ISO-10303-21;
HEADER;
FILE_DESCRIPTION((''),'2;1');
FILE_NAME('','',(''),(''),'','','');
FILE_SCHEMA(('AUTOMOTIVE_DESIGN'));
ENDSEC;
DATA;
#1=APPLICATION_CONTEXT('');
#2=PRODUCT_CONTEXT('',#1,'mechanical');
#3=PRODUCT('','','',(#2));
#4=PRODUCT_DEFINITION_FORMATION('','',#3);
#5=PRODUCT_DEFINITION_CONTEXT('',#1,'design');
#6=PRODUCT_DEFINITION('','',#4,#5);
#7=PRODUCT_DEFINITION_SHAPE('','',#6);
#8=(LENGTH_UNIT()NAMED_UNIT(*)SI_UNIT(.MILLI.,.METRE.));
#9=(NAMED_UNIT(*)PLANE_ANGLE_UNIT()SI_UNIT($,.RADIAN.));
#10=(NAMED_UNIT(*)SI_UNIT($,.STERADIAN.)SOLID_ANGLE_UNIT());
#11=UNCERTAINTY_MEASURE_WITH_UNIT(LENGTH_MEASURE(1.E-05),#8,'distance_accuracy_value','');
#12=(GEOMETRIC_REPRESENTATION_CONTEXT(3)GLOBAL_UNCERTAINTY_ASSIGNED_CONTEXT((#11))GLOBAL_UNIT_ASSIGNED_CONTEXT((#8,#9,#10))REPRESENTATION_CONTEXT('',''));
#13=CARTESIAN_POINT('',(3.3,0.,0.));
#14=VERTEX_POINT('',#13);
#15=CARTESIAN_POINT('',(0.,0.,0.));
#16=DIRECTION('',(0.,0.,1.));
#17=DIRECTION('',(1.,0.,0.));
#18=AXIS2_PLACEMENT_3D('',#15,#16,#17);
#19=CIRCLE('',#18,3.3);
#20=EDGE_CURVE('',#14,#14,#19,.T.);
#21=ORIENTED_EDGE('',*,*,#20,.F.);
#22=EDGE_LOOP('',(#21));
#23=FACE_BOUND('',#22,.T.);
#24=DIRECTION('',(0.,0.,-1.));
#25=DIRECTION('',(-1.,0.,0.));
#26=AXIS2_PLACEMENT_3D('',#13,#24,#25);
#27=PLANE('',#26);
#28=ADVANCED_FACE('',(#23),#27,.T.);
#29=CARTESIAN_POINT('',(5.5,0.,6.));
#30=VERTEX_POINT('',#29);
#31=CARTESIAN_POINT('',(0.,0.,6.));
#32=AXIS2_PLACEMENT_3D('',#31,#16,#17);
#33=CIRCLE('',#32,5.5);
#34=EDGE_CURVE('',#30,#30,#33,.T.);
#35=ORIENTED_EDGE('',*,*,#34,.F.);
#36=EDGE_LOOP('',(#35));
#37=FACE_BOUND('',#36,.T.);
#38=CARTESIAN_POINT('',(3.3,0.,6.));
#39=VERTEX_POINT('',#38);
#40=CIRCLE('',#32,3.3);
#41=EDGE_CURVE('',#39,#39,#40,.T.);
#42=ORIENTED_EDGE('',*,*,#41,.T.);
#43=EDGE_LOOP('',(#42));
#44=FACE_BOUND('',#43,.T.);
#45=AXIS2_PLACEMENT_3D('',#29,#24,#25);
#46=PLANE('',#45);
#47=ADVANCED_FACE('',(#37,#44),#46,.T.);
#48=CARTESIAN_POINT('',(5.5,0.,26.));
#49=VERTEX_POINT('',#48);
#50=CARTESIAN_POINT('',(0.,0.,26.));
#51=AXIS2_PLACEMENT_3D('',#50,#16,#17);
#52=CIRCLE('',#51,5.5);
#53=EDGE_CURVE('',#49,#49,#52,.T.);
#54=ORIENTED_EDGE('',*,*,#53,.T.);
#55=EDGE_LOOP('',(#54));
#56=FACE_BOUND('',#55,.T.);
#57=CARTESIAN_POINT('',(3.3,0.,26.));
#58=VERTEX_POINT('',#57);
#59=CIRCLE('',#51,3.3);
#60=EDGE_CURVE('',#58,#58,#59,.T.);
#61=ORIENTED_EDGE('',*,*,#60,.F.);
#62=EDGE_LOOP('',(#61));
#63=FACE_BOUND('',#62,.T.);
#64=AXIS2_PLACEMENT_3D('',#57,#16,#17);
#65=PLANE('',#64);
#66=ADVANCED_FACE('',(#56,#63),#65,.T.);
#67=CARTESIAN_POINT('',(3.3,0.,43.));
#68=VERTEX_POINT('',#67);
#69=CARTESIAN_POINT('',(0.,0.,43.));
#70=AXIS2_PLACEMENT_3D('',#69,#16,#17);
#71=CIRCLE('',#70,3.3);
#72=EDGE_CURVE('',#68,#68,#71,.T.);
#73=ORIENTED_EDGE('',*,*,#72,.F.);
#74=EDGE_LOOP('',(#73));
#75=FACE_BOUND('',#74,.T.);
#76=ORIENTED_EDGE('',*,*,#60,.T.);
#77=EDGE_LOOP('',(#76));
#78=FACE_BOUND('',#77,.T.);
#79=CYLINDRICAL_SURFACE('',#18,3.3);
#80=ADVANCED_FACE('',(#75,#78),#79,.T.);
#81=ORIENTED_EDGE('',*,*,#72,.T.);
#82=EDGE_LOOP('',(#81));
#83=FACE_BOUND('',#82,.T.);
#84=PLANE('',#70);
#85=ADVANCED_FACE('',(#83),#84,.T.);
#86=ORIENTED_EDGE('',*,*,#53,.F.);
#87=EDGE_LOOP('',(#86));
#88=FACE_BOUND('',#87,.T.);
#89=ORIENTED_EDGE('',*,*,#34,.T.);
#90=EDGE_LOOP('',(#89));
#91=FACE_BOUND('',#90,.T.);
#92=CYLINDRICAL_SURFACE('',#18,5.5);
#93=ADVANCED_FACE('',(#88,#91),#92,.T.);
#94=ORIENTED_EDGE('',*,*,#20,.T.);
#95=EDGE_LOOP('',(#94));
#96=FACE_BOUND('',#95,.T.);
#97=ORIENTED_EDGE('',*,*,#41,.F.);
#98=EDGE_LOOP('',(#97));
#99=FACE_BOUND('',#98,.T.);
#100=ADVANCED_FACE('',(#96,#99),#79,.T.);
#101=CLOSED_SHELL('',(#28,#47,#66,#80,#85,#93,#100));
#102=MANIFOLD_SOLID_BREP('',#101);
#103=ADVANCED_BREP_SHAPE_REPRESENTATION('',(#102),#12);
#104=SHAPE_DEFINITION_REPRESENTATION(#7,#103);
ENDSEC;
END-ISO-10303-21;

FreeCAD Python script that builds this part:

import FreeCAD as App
import Part
import Sketcher


def add_polygon(sketch, points):
    """Adds a closed chain of lines whose ends are joined by coincident constraints."""
    first, n = sketch.GeometryCount, len(points)
    for a, b in zip(points, points[1:] + points[:1]):
        sketch.addGeometry(Part.LineSegment(App.Vector(*a, 0), App.Vector(*b, 0)), False)
    for i in range(n):
        sketch.addConstraint(Sketcher.Constraint("Coincident", first + i, 2, first + (i + 1) % n, 1))

doc = App.newDocument("Part")
params = doc.addObject("Spreadsheet::Sheet", "Params")
for row, (alias, value) in enumerate([
    ("sketch1_height", "43 mm"),
    ("sketch1_height2", "17 mm"),
    ("sketch1_height3", "20 mm"),
    ("sketch1_width", "3.3 mm"),
    ("sketch1_width2", "2.2 mm"),
    ("revolution_angle", "360 deg"),
], start=1):
    params.set(f"A{row}", alias)
    params.set(f"B{row}", "=" + value)
    params.setAlias(f"B{row}", alias)

body = doc.addObject("PartDesign::Body", "Body")

# Sketch on XZ plane
sketch1 = doc.addObject("Sketcher::SketchObject", "Sketch")
body.addObject(sketch1)
sketch1.AttachmentSupport = (doc.XZ_Plane, [""])
sketch1.MapMode = "FlatFace"
add_polygon(sketch1, [(3.3, 0), (0, 0), (0, 43), (3.3, 43), (3.3, 26), (5.5, 26), (5.5, 6), (3.3, 6)])  # lines 0-7
sketch1.addConstraint([
    Sketcher.Constraint("Horizontal", 0),
    Sketcher.Constraint("Vertical", 1),
    Sketcher.Constraint("Horizontal", 2),
    Sketcher.Constraint("Vertical", 3),
    Sketcher.Constraint("Horizontal", 4),
    Sketcher.Constraint("Vertical", 5),
    Sketcher.Constraint("Horizontal", 6),
    Sketcher.Constraint("Vertical", 7),
    Sketcher.Constraint("Coincident", 0, 2, -1, 1),
    Sketcher.Constraint("Vertical", 3, 2, 6, 2),
    Sketcher.Constraint("DistanceY", 1, 1, 1, 2, 43.0),
    Sketcher.Constraint("DistanceY", 3, 2, 3, 1, 17.0),
    Sketcher.Constraint("DistanceY", 5, 2, 5, 1, 20.0),
    Sketcher.Constraint("DistanceX", 0, 2, 0, 1, 3.3),
    Sketcher.Constraint("DistanceX", 4, 1, 4, 2, 2.2),
])
sketch1.setExpression("Constraints[18]", "Params.sketch1_height")
sketch1.setExpression("Constraints[19]", "Params.sketch1_height2")
sketch1.setExpression("Constraints[20]", "Params.sketch1_height3")
sketch1.setExpression("Constraints[21]", "Params.sketch1_width")
sketch1.setExpression("Constraints[22]", "Params.sketch1_width2")
revolution = doc.addObject("PartDesign::Revolution", "Revolution")
body.addObject(revolution)
revolution.Profile = sketch1
revolution.ReferenceAxis = (sketch1, ["V_Axis"])
revolution.setExpression("Angle", "Params.revolution_angle")

doc.recompute()
